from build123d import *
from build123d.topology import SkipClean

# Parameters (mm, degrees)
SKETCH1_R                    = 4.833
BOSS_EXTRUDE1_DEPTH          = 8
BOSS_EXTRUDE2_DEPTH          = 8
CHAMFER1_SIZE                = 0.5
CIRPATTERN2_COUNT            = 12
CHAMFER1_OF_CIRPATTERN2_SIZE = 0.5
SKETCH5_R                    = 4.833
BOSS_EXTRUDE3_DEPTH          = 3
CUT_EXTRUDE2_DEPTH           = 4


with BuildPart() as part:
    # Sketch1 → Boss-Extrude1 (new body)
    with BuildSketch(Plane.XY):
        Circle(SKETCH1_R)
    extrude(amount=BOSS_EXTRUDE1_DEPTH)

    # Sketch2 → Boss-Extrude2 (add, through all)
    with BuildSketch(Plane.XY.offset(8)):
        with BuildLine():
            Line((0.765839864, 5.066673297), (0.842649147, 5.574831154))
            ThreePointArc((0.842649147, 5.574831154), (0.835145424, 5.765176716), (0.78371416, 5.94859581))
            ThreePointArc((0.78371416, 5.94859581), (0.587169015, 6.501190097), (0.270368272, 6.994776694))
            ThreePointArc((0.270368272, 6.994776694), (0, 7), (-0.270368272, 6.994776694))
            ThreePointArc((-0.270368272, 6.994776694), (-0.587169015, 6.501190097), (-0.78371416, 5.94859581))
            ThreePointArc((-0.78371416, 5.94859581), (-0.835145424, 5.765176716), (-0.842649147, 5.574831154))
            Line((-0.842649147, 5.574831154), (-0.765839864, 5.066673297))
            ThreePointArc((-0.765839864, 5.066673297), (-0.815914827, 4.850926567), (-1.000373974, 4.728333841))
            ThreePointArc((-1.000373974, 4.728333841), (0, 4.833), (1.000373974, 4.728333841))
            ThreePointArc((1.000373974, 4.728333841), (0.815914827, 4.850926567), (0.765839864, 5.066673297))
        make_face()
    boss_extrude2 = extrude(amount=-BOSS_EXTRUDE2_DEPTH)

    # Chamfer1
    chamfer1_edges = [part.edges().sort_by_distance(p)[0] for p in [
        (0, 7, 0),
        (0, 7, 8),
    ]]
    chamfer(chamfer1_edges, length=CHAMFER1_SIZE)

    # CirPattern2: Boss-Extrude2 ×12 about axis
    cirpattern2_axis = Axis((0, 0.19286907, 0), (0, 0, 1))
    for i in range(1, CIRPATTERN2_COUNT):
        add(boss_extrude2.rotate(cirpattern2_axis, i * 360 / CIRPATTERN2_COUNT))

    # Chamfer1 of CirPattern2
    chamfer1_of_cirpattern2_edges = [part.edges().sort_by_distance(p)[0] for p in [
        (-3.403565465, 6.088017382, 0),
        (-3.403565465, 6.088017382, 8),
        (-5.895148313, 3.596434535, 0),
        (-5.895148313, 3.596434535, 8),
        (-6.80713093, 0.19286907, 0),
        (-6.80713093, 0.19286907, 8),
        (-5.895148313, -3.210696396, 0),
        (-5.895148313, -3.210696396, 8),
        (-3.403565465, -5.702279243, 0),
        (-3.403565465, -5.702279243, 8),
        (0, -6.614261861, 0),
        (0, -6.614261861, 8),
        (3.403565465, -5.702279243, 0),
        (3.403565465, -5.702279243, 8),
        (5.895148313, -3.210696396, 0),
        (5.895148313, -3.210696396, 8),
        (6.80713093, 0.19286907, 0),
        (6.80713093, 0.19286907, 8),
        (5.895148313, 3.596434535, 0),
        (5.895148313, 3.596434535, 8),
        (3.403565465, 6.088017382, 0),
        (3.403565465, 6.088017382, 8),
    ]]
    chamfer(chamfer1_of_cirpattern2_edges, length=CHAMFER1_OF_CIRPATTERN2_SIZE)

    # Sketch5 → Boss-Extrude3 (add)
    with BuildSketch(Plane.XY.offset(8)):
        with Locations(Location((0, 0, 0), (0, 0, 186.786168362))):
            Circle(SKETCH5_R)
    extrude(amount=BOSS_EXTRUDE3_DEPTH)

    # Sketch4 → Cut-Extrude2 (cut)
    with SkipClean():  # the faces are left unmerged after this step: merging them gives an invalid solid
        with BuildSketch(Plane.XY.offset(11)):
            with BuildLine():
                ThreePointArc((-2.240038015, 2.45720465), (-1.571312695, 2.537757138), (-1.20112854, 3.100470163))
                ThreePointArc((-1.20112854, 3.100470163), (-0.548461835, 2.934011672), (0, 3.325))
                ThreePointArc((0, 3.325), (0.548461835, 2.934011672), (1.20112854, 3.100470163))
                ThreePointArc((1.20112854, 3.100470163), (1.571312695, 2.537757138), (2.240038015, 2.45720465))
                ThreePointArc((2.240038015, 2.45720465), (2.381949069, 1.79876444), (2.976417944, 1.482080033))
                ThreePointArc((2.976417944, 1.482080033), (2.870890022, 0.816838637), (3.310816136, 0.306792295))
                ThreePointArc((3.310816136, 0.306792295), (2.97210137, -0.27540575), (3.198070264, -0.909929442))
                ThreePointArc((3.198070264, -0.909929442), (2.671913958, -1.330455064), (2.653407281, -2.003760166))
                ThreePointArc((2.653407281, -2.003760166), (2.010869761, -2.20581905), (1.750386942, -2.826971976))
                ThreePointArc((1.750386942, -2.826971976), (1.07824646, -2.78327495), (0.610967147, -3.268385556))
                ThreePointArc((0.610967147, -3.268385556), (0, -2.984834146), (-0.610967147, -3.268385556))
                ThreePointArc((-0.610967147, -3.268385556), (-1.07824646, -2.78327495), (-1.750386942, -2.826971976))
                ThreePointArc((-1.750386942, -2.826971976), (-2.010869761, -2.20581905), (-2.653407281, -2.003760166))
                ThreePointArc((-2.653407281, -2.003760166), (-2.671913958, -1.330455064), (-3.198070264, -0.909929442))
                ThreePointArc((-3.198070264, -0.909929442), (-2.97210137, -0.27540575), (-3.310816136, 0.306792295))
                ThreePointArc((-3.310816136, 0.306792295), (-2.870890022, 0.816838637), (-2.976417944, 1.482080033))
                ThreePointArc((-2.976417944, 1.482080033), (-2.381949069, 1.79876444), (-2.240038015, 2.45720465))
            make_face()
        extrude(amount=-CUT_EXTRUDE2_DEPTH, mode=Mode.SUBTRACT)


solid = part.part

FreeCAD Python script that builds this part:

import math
import FreeCAD as App
import Part
import Sketcher
from FreeCAD import Vector


def edges_at(feature, points):
    """Names of the edges that pass closest to the given points."""
    edges = feature.Shape.Edges
    near = lambda p: min(range(len(edges)), key=lambda i: edges[i].distToShape(Part.Vertex(*p))[0])
    return sorted({f"Edge{near(p) + 1}" for p in points})

doc = App.newDocument("Part")
params = doc.addObject("Spreadsheet::Sheet", "Params")
for row, (alias, value) in enumerate([
    ("pad1_length", "8 mm"),
    ("sketch2_radius", "7 mm"),
    ("sketch2_radius2", "0.3 mm"),
    ("pad2_length", "8 mm"),
    ("chamfer_size", "0.5 mm"),
    ("chamfer2_size", "0.5 mm"),
    ("pad3_length", "3 mm"),
    ("sketch4_radius", "0.8 mm"),
    ("pocket1_length", "4 mm"),
], start=1):
    params.set(f"A{row}", alias)
    params.set(f"B{row}", "=" + value)
    params.setAlias(f"B{row}", alias)

body = doc.addObject("PartDesign::Body", "Body")

# Sketch on XY plane
sketch1 = body.newObject("Sketcher::SketchObject", "Sketch")
sketch1.AttachmentSupport = (doc.getObject("XY_Plane"), [""])
sketch1.MapMode = "FlatFace"
sketch1.addGeometry(Part.Circle(Vector(0, 0, 0), Vector(0, 0, 1), 4.8), False)
sketch1.addConstraint([
    Sketcher.Constraint("Coincident", 0, 3, -1, 1),
    Sketcher.Constraint("Diameter", 0, 9.666),
])
pad1 = body.newObject("PartDesign::Pad", "Pad")
pad1.Profile = sketch1
pad1.setExpression("Length", "Params.pad1_length")

# Sketch on XY plane
sketch2 = body.newObject("Sketcher::SketchObject", "Sketch001")
sketch2.AttachmentSupport = (doc.getObject("XY_Plane"), [""])
sketch2.MapMode = "FlatFace"
sketch2.AttachmentOffset = App.Placement(Vector(0, 0, 8), App.Rotation())
sketch2.addGeometry([
    Part.LineSegment(Vector(0.77, 5.07, 0), Vector(0.84, 5.57, 0)),  # 0
    Part.ArcOfCircle(Part.Circle(Vector(0.03, 5.64, 0), Vector(0, 0, 1), 0.82), math.radians(-4), math.radians(22)),  # 1
    Part.ArcOfCircle(Part.Circle(Vector(-1.72, 5.37, 0), Vector(0, 0, 1), 2.57), math.radians(13), math.radians(39)),  # 2
    Part.ArcOfCircle(Part.Circle(Vector(0, 0, 0), Vector(0, 0, 1), 7), math.radians(87.79), math.radians(92.21)),  # 3
    Part.ArcOfCircle(Part.Circle(Vector(1.72, 5.37, 0), Vector(0, 0, 1), 2.57), math.radians(141), math.radians(167)),  # 4
    Part.ArcOfCircle(Part.Circle(Vector(-0.03, 5.64, 0), Vector(0, 0, 1), 0.82), math.radians(158), math.radians(184)),  # 5
    Part.LineSegment(Vector(-0.84, 5.57, 0), Vector(-0.77, 5.07, 0)),  # 6
    Part.ArcOfCircle(Part.Circle(Vector(-1.06, 5.02, 0), Vector(0, 0, 1), 0.3), math.radians(-78), math.radians(9)),  # 7
    Part.ArcOfCircle(Part.Circle(Vector(0, 0, 0), Vector(0, 0, 1), 4.83), math.radians(78), math.radians(102)),  # 8
    Part.ArcOfCircle(Part.Circle(Vector(1.06, 5.02, 0), Vector(0, 0, 1), 0.3), math.radians(171), math.radians(258)),  # 9
], False)
sketch2.addConstraint([
    Sketcher.Constraint("Coincident", 0, 2, 1, 1),
    Sketcher.Constraint("Coincident", 1, 2, 2, 1),
    Sketcher.Constraint("Coincident", 2, 2, 3, 1),
    Sketcher.Constraint("Coincident", 3, 2, 4, 1),
    Sketcher.Constraint("Coincident", 4, 2, 5, 1),
    Sketcher.Constraint("Coincident", 5, 2, 6, 1),
    Sketcher.Constraint("Tangent", 6, 2, 7, 2),
    Sketcher.Constraint("Tangent", 7, 1, 8, 2),
    Sketcher.Constraint("Tangent", 8, 1, 9, 2),
    Sketcher.Constraint("Tangent", 9, 1, 0, 1),
    Sketcher.Constraint("Coincident", 3, 3, -1, 1),
    Sketcher.Constraint("Coincident", 8, 3, -1, 1),
    Sketcher.Constraint("Equal", 2, 4),
    Sketcher.Constraint("Equal", 1, 5),
    Sketcher.Constraint("Equal", 7, 9),
    Sketcher.Constraint("Symmetric", 2, 3, 4, 3, -2),
    Sketcher.Constraint("Symmetric", 1, 3, 5, 3, -2),
    Sketcher.Constraint("Symmetric", 6, 2, 9, 1, -2),
    Sketcher.Constraint("Radius", 3, 7.0),
    Sketcher.Constraint("Radius", 7, 0.3),
    Sketcher.Constraint("Radius", 1, 0.816),
    Sketcher.Constraint("Radius", 2, 2.568),
    Sketcher.Constraint("Radius", 8, 4.833),
    Sketcher.Constraint("Distance", 0, 0.51393),
    Sketcher.Constraint("DistanceY", -1, 1, 1, 3, 5.638081),
    Sketcher.Constraint("DistanceX", 7, 3, -1, 1, 1.06247),
    Sketcher.Constraint("DistanceX", -1, 1, 0, 2, 0.842649),
    Sketcher.Constraint("DistanceX", -1, 1, 2, 2, 0.270368),
    Sketcher.Constraint("DistanceX", 2, 3, 1, 3, 1.747349),
])
sketch2.setExpression("Constraints[18]", "Params.sketch2_radius")
sketch2.setExpression("Constraints[19]", "Params.sketch2_radius2")
pad2 = body.newObject("PartDesign::Pad", "Pad001")
pad2.Profile = sketch2
pad2.setExpression("Length", "Params.pad2_length")
pad2.Reversed = True
doc.recompute()

chamfer = body.newObject("PartDesign::Chamfer", "Chamfer")
chamfer.Base = (pad2, edges_at(pad2, [(0, 7, 0), (0, 7, 8)]))
chamfer.setExpression("Size", "Params.chamfer_size")
doc.recompute()

datumline = body.newObject("PartDesign::Line", "DatumLine")
datumline.Placement = App.Placement(Vector(0, 0.192869, 0), App.Rotation(Vector(0, 0, 1), Vector(0, 0, 1)))
polarpattern = body.newObject("PartDesign::PolarPattern", "PolarPattern")
polarpattern.Originals = [pad2]
polarpattern.Axis = (datumline, [""])
polarpattern.Angle = 360
polarpattern.Occurrences = 12
body.Tip = polarpattern
doc.recompute()

chamfer2 = body.newObject("PartDesign::Chamfer", "Chamfer001")
chamfer2.Base = (polarpattern, edges_at(polarpattern, [
    (-3.404, 6.088, 0),
    (-3.404, 6.088, 8),
    (-5.895, 3.596, 0),
    (-5.895, 3.596, 8),
    (-6.807, 0.193, 0),
    (-6.807, 0.193, 8),
    (-5.895, -3.211, 0),
    (-5.895, -3.211, 8),
    (-3.404, -5.702, 0),
    (-3.404, -5.702, 8),
    (0, -6.614, 0),
    (0, -6.614, 8),
    (3.404, -5.702, 0),
    (3.404, -5.702, 8),
    (5.895, -3.211, 0),
    (5.895, -3.211, 8),
    (6.807, 0.193, 0),
    (6.807, 0.193, 8),
    (5.895, 3.596, 0),
    (5.895, 3.596, 8),
    (3.404, 6.088, 0),
    (3.404, 6.088, 8),
]))
chamfer2.setExpression("Size", "Params.chamfer2_size")

# Sketch on XY plane
sketch3 = body.newObject("Sketcher::SketchObject", "Sketch002")
sketch3.AttachmentSupport = (doc.getObject("XY_Plane"), [""])
sketch3.MapMode = "FlatFace"
sketch3.AttachmentOffset = App.Placement(Vector(0, 0, 8), App.Rotation())
sketch3.addGeometry(Part.Circle(Vector(0, 0, 0), Vector(0, 0, 1), 4.8), False)
sketch3.addConstraint([
    Sketcher.Constraint("Coincident", 0, 3, -1, 1),
    Sketcher.Constraint("Diameter", 0, 9.666),
])
pad3 = body.newObject("PartDesign::Pad", "Pad002")
pad3.Profile = sketch3
pad3.setExpression("Length", "Params.pad3_length")

# Sketch on XY plane
sketch4 = body.newObject("Sketcher::SketchObject", "Sketch003")
sketch4.AttachmentSupport = (doc.getObject("XY_Plane"), [""])
sketch4.MapMode = "FlatFace"
sketch4.AttachmentOffset = App.Placement(Vector(0, 0, 11), App.Rotation())
sketch4.addGeometry([
    Part.ArcOfCircle(Part.Circle(Vector(-2, 3.2, 0), Vector(0, 0, 1), 0.8), math.radians(-108), math.radians(-8)),  # 0
    Part.ArcOfCircle(Part.Circle(Vector(-3, 2.3, 0), Vector(0, 0, 1), 0.8), math.radians(-87), math.radians(13)),  # 1
    Part.ArcOfCircle(Part.Circle(Vector(-3.6, 1, 0), Vector(0, 0, 1), 0.8), math.radians(-66), math.radians(34)),  # 2
    Part.ArcOfCircle(Part.Circle(Vector(-3.8, -0.3, 0), Vector(0, 0, 1), 0.8), math.radians(-44), math.radians(55)),  # 3
    Part.ArcOfCircle(Part.Circle(Vector(-3.4, -1.7, 0), Vector(0, 0, 1), 0.8), math.radians(-23), math.radians(76)),  # 4
    Part.ArcOfCircle(Part.Circle(Vector(-2.5, -2.8, 0), Vector(0, 0, 1), 0.8), math.radians(-2), math.radians(97)),  # 5
    Part.ArcOfCircle(Part.Circle(Vector(-1.4, -3.5, 0), Vector(0, 0, 1), 0.8), math.radians(19), math.radians(119)),  # 6
    Part.ArcOfCircle(Part.Circle(Vector(0, -3.8, 0), Vector(0, 0, 1), 0.8), math.radians(40), math.radians(140)),  # 7
    Part.ArcOfCircle(Part.Circle(Vector(1.4, -3.5, 0), Vector(0, 0, 1), 0.8), math.radians(61), math.radians(161)),  # 8
    Part.ArcOfCircle(Part.Circle(Vector(2.5, -2.8, 0), Vector(0, 0, 1), 0.8), math.radians(83), math.radians(182)),  # 9
    Part.ArcOfCircle(Part.Circle(Vector(3.4, -1.7, 0), Vector(0, 0, 1), 0.8), math.radians(104), math.radians(203)),  # 10
    Part.ArcOfCircle(Part.Circle(Vector(3.8, -0.3, 0), Vector(0, 0, 1), 0.8), math.radians(125), math.radians(224)),  # 11
    Part.ArcOfCircle(Part.Circle(Vector(3.6, 1, 0), Vector(0, 0, 1), 0.8), math.radians(146), math.radians(246)),  # 12
    Part.ArcOfCircle(Part.Circle(Vector(3, 2.3, 0), Vector(0, 0, 1), 0.8), math.radians(167), math.radians(267)),  # 13
    Part.ArcOfCircle(Part.Circle(Vector(2, 3.2, 0), Vector(0, 0, 1), 0.8), math.radians(-172), math.radians(-72)),  # 14
    Part.ArcOfCircle(Part.Circle(Vector(0.7, 3.7, 0), Vector(0, 0, 1), 0.8), math.radians(-150), math.radians(-51)),  # 15
    Part.ArcOfCircle(Part.Circle(Vector(-0.7, 3.7, 0), Vector(0, 0, 1), 0.8), math.radians(-129), math.radians(-30)),  # 16
], False)
sketch4.addConstraint([
    Sketcher.Constraint("Coincident", 0, 1, 1, 2),
    Sketcher.Constraint("Coincident", 1, 1, 2, 2),
    Sketcher.Constraint("Coincident", 2, 1, 3, 2),
    Sketcher.Constraint("Coincident", 3, 1, 4, 2),
    Sketcher.Constraint("Coincident", 4, 1, 5, 2),
    Sketcher.Constraint("Coincident", 5, 1, 6, 2),
    Sketcher.Constraint("Coincident", 6, 1, 7, 2),
    Sketcher.Constraint("Coincident", 7, 1, 8, 2),
    Sketcher.Constraint("Coincident", 8, 1, 9, 2),
    Sketcher.Constraint("Coincident", 9, 1, 10, 2),
    Sketcher.Constraint("Coincident", 10, 1, 11, 2),
    Sketcher.Constraint("Coincident", 11, 1, 12, 2),
    Sketcher.Constraint("Coincident", 12, 1, 13, 2),
    Sketcher.Constraint("Coincident", 13, 1, 14, 2),
    Sketcher.Constraint("Coincident", 14, 1, 15, 2),
    Sketcher.Constraint("Coincident", 15, 1, 16, 2),
    Sketcher.Constraint("Coincident", 16, 1, 0, 2),
    Sketcher.Constraint("Equal", 0, 1),
    Sketcher.Constraint("Equal", 1, 2),
    Sketcher.Constraint("Equal", 2, 3),
    Sketcher.Constraint("Equal", 3, 4),
    Sketcher.Constraint("Equal", 4, 5),
    Sketcher.Constraint("Equal", 5, 6),
    Sketcher.Constraint("Equal", 6, 7),
    Sketcher.Constraint("Equal", 7, 8),
    Sketcher.Constraint("Equal", 8, 9),
    Sketcher.Constraint("Equal", 9, 10),
    Sketcher.Constraint("Equal", 10, 11),
    Sketcher.Constraint("Equal", 11, 12),
    Sketcher.Constraint("Equal", 12, 13),
    Sketcher.Constraint("Equal", 13, 14),
    Sketcher.Constraint("Equal", 14, 15),
    Sketcher.Constraint("Equal", 15, 16),
    Sketcher.Constraint("Symmetric", 6, 3, 8, 3, -2),
    Sketcher.Constraint("Symmetric", 5, 3, 9, 3, -2),
    Sketcher.Constraint("Symmetric", 4, 3, 10, 3, -2),
    Sketcher.Constraint("Symmetric", 3, 3, 11, 3, -2),
    Sketcher.Constraint("Symmetric", 2, 3, 12, 3, -2),
    Sketcher.Constraint("Symmetric", 1, 3, 13, 3, -2),
    Sketcher.Constraint("Symmetric", 0, 3, 14, 3, -2),
    Sketcher.Constraint("Symmetric", 15, 3, 16, 3, -2),
    Sketcher.Constraint("PointOnObject", 7, 3, -2),
    Sketcher.Constraint("Radius", 0, 0.8),
    Sketcher.Constraint("DistanceY", -1, 1, 15, 1, 3.325),
    Sketcher.Constraint("DistanceY", 5, 3, 1, 3, 5.077898),
    Sketcher.Constraint("DistanceX", 15, 3, 13, 3, 2.324901),
    Sketcher.Constraint("DistanceX", 0, 1, 15, 3, 2.935499),
    Sketcher.Constraint("DistanceY", 3, 3, 1, 1, 1.8313),
    Sketcher.Constraint("DistanceX", 2, 1, 1, 1, 0.334398),
    Sketcher.Constraint("DistanceY", 3, 1, 2, 3, 1.945698),
    Sketcher.Constraint("DistanceY", 13, 3, 14, 1, 0.819598),
    Sketcher.Constraint("DistanceX", 0, 3, -1, 1, 1.992458),
    Sketcher.Constraint("DistanceY", -1, 1, 0, 3, 3.217931),
    Sketcher.Constraint("DistanceX", 2, 3, -1, 1, 3.640351),
    Sketcher.Constraint("DistanceY", -1, 1, 2, 3, 1.035769),
    Sketcher.Constraint("DistanceX", 6, 3, -1, 1, 1.36724),
    Sketcher.Constraint("DistanceY", 4, 1, -1, 1, 2.00376),
    Sketcher.Constraint("DistanceY", 5, 1, -1, 1, 2.826972),
    Sketcher.Constraint("DistanceX", 4, 3, 1, 3, 0.367682),
    Sketcher.Constraint("DistanceY", 7, 3, 6, 3, 0.255581),
])
sketch4.setExpression("Constraints[42]", "Params.sketch4_radius")
pocket1 = body.newObject("PartDesign::Pocket", "Pocket")
pocket1.Profile = sketch4
pocket1.setExpression("Length", "Params.pocket1_length")

doc.recompute()
